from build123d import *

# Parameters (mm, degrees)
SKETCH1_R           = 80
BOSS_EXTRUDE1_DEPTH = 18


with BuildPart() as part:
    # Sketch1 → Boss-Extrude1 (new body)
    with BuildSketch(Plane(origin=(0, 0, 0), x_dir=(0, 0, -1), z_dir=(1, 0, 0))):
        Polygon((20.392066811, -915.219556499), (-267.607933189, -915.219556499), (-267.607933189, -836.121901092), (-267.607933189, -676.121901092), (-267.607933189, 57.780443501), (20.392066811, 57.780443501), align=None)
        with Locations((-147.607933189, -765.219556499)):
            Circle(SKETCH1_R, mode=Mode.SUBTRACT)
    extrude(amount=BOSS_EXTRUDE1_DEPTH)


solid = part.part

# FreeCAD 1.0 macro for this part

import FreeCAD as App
import Part
import Sketcher
Q = App.Units.Quantity

doc = App.newDocument("Part")
params = doc.addObject("Spreadsheet::Sheet", "Params")
for row, (alias, value) in enumerate([
    ("sketch1_diameter", "160 mm"),
    ("sketch1_width", "973 mm"),
    ("sketch1_height", "288 mm"),
    ("pad1_length", "18 mm"),
], start=1):
    params.set(f"A{row}", alias)
    params.set(f"B{row}", "=" + value)
    params.setAlias(f"B{row}", alias)

body = doc.addObject("PartDesign::Body", "Body")

sketch1 = doc.addObject("Sketcher::SketchObject", "Sketch")
body.addObject(sketch1)
sketch1.AttachmentSupport = (doc.YZ_Plane, [""])
sketch1.MapMode = "FlatFace"
sketch1.addGeometry([
    Part.LineSegment(App.Vector(-915, 268, 0), App.Vector(-915, -20, 0)),
    Part.LineSegment(App.Vector(-915, -20, 0), App.Vector(58, -20, 0)),
    Part.LineSegment(App.Vector(58, -20, 0), App.Vector(58, 268, 0)),
    Part.LineSegment(App.Vector(58, 268, 0), App.Vector(-915, 268, 0)),
    Part.Circle(App.Vector(-765, 148, 0), App.Vector(0, 0, 1), 80),
], False)
sketch1.addConstraint([
    Sketcher.Constraint("Coincident", 0, 2, 1, 1),
    Sketcher.Constraint("Coincident", 1, 2, 2, 1),
    Sketcher.Constraint("Coincident", 2, 2, 3, 1),
    Sketcher.Constraint("Coincident", 3, 2, 0, 1),
    Sketcher.Constraint("Vertical", 0),
    Sketcher.Constraint("Horizontal", 1),
    Sketcher.Constraint("Vertical", 2),
    Sketcher.Constraint("Horizontal", 3),
    Sketcher.Constraint("Diameter", 4, Q("160 mm")),
    Sketcher.Constraint("DistanceX", 1, 1, 1, 2, Q("973 mm")),
    Sketcher.Constraint("DistanceY", 0, 2, 0, 1, Q("288 mm")),
    Sketcher.Constraint("DistanceX", 0, 2, 4, 3, Q("150 mm")),
    Sketcher.Constraint("DistanceY", 0, 2, 4, 3, Q("168 mm")),
    Sketcher.Constraint("DistanceX", 4, 3, -1, 1, Q("765.219556 mm")),
    Sketcher.Constraint("DistanceY", -1, 1, 4, 3, Q("147.607933 mm")),
])
sketch1.setExpression("Constraints[8]", "Params.sketch1_diameter")
sketch1.setExpression("Constraints[9]", "Params.sketch1_width")
sketch1.setExpression("Constraints[10]", "Params.sketch1_height")
pad1 = doc.addObject("PartDesign::Pad", "Pad")
body.addObject(pad1)
pad1.Profile = sketch1
pad1.setExpression("Length", "Params.pad1_length")

doc.recompute()
